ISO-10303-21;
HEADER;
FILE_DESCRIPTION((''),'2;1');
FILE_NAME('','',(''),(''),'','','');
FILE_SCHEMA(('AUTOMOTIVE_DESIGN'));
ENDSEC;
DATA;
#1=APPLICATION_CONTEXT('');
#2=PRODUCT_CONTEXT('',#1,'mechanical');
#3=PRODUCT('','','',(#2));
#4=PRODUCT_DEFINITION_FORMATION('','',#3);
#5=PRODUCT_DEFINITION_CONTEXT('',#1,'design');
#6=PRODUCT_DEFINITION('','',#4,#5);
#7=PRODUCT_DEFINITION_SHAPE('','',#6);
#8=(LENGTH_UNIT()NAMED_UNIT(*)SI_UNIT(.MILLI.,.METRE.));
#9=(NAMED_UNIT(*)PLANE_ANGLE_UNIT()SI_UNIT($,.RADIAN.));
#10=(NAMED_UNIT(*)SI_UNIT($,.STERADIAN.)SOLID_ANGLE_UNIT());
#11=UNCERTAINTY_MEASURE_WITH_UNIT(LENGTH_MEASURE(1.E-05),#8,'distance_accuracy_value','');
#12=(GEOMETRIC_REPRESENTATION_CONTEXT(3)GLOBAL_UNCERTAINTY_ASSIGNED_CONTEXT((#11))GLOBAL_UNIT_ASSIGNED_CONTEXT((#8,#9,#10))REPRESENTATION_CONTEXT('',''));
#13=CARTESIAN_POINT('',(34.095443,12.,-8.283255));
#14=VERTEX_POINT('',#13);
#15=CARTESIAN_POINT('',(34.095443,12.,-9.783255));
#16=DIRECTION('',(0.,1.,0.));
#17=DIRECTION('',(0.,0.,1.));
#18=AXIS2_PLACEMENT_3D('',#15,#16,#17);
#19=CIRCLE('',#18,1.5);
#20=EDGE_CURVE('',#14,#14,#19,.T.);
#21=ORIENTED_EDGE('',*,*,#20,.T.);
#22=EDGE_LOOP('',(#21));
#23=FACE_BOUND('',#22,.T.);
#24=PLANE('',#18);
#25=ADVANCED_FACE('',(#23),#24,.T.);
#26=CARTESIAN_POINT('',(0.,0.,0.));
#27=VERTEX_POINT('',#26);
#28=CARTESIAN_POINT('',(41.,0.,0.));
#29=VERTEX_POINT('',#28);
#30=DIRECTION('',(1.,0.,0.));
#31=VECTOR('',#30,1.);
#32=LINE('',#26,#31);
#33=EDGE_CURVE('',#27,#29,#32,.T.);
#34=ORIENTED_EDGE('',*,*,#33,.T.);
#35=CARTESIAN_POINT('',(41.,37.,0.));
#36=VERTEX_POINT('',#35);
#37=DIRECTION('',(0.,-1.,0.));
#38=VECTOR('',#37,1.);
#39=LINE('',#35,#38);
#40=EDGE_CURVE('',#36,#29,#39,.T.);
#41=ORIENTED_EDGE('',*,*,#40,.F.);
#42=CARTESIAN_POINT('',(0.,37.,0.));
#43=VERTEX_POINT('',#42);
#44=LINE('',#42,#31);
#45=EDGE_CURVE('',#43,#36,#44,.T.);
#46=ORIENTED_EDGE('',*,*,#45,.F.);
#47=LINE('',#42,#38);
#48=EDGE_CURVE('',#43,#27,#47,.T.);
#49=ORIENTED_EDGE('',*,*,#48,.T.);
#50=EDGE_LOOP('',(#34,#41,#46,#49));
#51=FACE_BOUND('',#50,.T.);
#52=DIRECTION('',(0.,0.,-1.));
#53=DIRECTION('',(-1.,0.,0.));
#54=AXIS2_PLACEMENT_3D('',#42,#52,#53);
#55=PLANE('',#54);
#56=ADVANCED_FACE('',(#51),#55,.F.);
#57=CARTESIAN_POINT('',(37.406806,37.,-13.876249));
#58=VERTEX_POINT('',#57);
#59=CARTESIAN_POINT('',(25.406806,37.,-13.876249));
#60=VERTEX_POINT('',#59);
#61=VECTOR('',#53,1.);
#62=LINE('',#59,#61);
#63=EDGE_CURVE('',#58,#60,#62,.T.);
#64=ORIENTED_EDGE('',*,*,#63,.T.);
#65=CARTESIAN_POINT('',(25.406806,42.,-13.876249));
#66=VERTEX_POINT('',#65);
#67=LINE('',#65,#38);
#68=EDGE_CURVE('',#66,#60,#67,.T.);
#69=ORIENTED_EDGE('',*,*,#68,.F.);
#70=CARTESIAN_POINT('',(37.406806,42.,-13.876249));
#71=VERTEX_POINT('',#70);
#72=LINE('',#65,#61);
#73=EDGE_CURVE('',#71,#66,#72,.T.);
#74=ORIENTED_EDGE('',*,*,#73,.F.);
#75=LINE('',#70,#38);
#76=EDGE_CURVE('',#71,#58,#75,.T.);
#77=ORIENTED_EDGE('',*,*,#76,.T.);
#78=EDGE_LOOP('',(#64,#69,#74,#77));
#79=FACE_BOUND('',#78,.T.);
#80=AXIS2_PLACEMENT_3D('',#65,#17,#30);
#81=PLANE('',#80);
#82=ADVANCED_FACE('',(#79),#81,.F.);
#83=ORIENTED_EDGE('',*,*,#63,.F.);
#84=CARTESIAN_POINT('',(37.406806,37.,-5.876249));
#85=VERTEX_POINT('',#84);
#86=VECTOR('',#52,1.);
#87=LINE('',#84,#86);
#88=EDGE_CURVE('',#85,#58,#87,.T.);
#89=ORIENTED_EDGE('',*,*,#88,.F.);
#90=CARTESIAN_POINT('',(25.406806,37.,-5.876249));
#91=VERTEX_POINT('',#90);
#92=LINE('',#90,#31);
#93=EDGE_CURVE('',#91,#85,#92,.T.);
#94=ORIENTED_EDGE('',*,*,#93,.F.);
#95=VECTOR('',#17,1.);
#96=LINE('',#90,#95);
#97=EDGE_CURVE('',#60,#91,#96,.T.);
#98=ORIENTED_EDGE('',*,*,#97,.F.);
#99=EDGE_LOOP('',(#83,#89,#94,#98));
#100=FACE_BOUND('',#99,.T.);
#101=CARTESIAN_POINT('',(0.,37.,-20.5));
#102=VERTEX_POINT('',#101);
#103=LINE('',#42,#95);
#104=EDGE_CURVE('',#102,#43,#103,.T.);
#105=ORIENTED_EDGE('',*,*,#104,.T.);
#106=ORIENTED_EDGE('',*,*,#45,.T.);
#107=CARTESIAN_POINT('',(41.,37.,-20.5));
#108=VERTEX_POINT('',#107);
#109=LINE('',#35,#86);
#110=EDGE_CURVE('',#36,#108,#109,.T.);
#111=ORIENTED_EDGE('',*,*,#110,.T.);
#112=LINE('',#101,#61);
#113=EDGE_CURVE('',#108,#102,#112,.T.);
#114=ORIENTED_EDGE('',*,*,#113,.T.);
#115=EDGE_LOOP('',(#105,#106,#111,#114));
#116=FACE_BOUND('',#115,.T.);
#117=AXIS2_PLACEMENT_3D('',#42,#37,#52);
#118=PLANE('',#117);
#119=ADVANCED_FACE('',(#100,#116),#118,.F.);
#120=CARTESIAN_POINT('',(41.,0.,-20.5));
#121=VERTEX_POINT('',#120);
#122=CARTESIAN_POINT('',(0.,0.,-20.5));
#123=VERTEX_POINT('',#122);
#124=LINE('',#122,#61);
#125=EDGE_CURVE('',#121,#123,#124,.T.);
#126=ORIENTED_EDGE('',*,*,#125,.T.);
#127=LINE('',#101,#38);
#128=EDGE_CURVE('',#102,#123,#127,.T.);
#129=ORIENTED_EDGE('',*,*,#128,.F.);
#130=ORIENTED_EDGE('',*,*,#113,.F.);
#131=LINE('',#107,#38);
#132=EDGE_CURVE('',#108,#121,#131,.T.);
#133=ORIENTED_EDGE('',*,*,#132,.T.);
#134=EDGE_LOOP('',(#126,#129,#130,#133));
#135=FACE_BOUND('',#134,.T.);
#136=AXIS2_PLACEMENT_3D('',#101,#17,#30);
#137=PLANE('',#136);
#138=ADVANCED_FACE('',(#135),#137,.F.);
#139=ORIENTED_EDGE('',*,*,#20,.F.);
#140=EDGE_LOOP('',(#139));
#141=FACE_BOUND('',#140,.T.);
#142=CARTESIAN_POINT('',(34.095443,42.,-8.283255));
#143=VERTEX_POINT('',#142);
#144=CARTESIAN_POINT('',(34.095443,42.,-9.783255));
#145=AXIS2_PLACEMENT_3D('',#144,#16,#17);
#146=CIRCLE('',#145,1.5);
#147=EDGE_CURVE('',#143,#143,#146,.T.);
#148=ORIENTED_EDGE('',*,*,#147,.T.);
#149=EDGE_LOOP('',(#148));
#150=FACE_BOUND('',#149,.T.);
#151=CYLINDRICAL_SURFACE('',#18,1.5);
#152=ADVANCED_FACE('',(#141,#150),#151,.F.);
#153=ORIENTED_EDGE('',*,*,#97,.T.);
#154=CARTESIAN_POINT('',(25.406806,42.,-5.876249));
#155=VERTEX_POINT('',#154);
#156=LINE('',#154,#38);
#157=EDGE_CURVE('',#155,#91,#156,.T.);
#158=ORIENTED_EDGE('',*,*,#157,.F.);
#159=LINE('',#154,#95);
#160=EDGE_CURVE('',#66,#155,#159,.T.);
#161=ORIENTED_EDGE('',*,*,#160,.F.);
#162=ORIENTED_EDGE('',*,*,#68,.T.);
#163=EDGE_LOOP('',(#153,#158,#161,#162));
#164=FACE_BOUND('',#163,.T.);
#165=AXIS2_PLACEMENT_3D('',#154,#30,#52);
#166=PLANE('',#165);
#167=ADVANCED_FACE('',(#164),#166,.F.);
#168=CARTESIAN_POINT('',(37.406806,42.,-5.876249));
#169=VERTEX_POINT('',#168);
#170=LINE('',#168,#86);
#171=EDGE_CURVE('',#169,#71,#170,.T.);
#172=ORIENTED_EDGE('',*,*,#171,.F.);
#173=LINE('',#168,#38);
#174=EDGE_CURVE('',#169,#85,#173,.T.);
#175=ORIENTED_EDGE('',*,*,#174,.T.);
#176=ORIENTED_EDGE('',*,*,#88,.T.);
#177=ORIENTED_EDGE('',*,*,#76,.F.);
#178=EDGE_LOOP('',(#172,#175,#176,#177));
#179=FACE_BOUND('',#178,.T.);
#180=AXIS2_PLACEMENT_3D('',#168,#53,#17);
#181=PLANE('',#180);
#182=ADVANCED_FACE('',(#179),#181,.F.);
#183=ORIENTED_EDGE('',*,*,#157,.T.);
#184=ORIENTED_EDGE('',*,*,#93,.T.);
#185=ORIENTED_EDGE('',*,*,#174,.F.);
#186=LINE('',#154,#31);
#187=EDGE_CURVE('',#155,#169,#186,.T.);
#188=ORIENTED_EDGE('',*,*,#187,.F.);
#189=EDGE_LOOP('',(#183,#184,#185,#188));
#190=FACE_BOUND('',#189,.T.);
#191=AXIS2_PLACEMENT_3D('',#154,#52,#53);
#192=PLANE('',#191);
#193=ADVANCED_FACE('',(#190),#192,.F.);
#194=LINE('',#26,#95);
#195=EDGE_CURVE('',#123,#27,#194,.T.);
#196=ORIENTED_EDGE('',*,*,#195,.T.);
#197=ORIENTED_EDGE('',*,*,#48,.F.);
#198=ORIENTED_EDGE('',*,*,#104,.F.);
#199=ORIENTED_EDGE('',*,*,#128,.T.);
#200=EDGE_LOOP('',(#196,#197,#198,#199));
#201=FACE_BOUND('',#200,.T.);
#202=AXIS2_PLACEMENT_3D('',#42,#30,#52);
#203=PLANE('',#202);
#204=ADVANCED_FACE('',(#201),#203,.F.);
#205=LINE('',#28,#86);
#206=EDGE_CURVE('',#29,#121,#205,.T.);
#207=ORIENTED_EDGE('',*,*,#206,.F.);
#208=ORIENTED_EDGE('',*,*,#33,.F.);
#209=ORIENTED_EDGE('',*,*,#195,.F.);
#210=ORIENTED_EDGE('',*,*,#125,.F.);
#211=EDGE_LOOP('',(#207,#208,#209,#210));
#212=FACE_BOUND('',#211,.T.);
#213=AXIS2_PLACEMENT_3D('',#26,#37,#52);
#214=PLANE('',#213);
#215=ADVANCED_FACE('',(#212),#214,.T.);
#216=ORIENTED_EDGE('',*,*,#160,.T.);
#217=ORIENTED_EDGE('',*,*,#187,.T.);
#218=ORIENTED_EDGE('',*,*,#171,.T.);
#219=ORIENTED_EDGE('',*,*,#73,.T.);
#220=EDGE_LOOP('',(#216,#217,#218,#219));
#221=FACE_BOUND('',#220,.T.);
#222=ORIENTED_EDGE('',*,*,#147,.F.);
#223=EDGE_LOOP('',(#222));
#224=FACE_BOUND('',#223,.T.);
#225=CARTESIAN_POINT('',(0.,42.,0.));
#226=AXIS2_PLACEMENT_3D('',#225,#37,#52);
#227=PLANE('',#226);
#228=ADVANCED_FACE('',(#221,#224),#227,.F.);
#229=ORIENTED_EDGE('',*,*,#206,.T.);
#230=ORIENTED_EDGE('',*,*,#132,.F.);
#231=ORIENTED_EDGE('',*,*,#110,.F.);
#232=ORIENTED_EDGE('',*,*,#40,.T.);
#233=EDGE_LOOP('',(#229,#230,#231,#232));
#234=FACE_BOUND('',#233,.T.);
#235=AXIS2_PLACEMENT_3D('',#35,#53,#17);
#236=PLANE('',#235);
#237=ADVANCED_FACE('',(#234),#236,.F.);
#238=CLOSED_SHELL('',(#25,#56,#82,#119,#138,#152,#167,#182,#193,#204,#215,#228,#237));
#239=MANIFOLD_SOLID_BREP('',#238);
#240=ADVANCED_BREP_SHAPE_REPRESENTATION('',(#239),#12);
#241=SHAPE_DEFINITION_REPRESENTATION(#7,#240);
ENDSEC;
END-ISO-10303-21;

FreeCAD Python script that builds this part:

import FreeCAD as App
import Part
import Sketcher

V = App.Vector
Q = App.Units.Quantity

doc = App.newDocument("Part")
body = doc.addObject("PartDesign::Body", "Body")

# Sketch on XZ plane
sketch1 = body.newObject("Sketcher::SketchObject", "Sketch")
sketch1.AttachmentSupport = (doc.getObject("XZ_Plane"), [""])
sketch1.MapMode = "FlatFace"
sketch1.addGeometry([
    Part.LineSegment(V(0, -20, 0), V(0, 0, 0)),
    Part.LineSegment(V(0, 0, 0), V(41, 0, 0)),
    Part.LineSegment(V(41, 0, 0), V(41, -20, 0)),
    Part.LineSegment(V(41, -20, 0), V(0, -20, 0)),
], False)
sketch1.addConstraint([
    Sketcher.Constraint("Coincident", 0, 2, 1, 1),
    Sketcher.Constraint("Coincident", 1, 2, 2, 1),
    Sketcher.Constraint("Coincident", 2, 2, 3, 1),
    Sketcher.Constraint("Coincident", 3, 2, 0, 1),
    Sketcher.Constraint("Vertical", 0),
    Sketcher.Constraint("Horizontal", 1),
    Sketcher.Constraint("Vertical", 2),
    Sketcher.Constraint("Horizontal", 3),
    Sketcher.Constraint("Coincident", 0, 2, -1, 1),
    Sketcher.Constraint("DistanceX", 1, 1, 1, 2, Q("41 mm")),
    Sketcher.Constraint("DistanceY", 0, 1, 0, 2, Q("20.5 mm")),
])
pad1 = body.newObject("PartDesign::Pad", "Pad")
pad1.Profile = sketch1
pad1.Length = 37
pad1.Reversed = True

# Sketch on XZ plane
sketch2 = body.newObject("Sketcher::SketchObject", "Sketch001")
sketch2.AttachmentSupport = (doc.getObject("XZ_Plane"), [""])
sketch2.MapMode = "FlatFace"
sketch2.AttachmentOffset = App.Placement(V(0, 0, -37), App.Rotation())
sketch2.addGeometry([
    Part.LineSegment(V(25, -14, 0), V(25, -6, 0)),
    Part.LineSegment(V(25, -6, 0), V(37, -6, 0)),
    Part.LineSegment(V(37, -6, 0), V(37, -14, 0)),
    Part.LineSegment(V(37, -14, 0), V(25, -14, 0)),
], False)
sketch2.addConstraint([
    Sketcher.Constraint("Coincident", 0, 2, 1, 1),
    Sketcher.Constraint("Coincident", 1, 2, 2, 1),
    Sketcher.Constraint("Coincident", 2, 2, 3, 1),
    Sketcher.Constraint("Coincident", 3, 2, 0, 1),
    Sketcher.Constraint("Vertical", 0),
    Sketcher.Constraint("Horizontal", 1),
    Sketcher.Constraint("Vertical", 2),
    Sketcher.Constraint("Horizontal", 3),
    Sketcher.Constraint("DistanceX", 1, 1, 1, 2, Q("12 mm")),
    Sketcher.Constraint("DistanceY", 0, 1, 0, 2, Q("8 mm")),
    Sketcher.Constraint("DistanceY", 0, 2, -1, 1, Q("5.876249 mm")),
    Sketcher.Constraint("DistanceX", -1, 1, 0, 2, Q("25.406806 mm")),
])
pad2 = body.newObject("PartDesign::Pad", "Pad001")
pad2.Profile = sketch2
pad2.Length = 5
pad2.Reversed = True

# Sketch on XZ plane
sketch3 = body.newObject("Sketcher::SketchObject", "Sketch002")
sketch3.AttachmentSupport = (doc.getObject("XZ_Plane"), [""])
sketch3.MapMode = "FlatFace"
sketch3.AttachmentOffset = App.Placement(V(0, 0, -42), App.Rotation())
sketch3.addGeometry(Part.Circle(V(34.1, -9.8, 0), V(0, 0, 1), 1.5), False)
sketch3.addConstraint([
    Sketcher.Constraint("Diameter", 0, Q("3 mm")),
    Sketcher.Constraint("DistanceX", -1, 1, 0, 3, Q("34.095443 mm")),
    Sketcher.Constraint("DistanceY", 0, 3, -1, 1, Q("9.783255 mm")),
])
pocket1 = body.newObject("PartDesign::Pocket", "Pocket")
pocket1.Profile = sketch3
pocket1.Length = 30
pocket1.Reversed = True

doc.recompute()
